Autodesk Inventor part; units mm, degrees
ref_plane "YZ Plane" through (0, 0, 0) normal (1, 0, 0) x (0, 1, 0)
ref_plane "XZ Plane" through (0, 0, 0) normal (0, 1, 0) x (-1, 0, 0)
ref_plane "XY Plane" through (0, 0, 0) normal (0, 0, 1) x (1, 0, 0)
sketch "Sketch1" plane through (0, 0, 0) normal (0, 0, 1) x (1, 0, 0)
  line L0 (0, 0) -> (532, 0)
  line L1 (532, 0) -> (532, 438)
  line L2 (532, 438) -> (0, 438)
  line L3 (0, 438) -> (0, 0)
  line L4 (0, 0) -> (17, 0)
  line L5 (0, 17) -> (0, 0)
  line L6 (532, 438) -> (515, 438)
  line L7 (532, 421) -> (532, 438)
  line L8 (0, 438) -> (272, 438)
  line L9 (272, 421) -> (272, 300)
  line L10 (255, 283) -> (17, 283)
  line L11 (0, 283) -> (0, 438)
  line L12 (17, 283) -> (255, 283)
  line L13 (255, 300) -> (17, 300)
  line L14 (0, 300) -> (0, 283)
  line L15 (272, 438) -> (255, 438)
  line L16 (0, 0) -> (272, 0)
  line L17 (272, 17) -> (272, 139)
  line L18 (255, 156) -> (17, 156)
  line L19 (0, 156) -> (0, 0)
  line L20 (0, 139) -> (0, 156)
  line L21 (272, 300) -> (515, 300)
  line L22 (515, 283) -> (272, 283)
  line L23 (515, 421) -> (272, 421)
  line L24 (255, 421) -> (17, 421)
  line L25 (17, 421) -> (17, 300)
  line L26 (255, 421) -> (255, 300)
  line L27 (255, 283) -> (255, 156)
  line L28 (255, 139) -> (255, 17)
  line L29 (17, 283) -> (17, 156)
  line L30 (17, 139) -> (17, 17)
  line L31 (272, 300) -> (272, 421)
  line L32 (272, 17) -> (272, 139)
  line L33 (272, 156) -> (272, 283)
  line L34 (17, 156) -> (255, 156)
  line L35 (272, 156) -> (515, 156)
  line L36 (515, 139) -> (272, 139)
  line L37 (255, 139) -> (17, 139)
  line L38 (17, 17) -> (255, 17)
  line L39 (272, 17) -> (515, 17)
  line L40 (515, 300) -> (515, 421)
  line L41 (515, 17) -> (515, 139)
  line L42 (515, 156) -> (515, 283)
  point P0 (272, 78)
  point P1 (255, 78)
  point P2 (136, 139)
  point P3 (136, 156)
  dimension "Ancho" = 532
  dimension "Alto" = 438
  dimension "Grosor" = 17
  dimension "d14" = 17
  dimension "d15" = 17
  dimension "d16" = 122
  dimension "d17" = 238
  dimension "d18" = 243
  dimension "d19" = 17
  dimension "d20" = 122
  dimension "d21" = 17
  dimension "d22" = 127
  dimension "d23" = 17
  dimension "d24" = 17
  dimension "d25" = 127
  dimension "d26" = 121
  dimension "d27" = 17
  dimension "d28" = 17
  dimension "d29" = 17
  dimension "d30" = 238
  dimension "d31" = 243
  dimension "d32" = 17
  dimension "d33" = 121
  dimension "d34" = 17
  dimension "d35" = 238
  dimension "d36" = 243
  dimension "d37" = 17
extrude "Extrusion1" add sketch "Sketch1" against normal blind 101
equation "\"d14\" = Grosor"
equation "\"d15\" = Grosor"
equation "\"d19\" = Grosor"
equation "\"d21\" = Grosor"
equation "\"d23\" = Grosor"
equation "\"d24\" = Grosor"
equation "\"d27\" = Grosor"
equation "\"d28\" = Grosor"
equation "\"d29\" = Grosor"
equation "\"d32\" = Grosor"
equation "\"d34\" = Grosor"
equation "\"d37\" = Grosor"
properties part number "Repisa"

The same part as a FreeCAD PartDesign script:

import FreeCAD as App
import Part
import Sketcher
Q = App.Units.Quantity

doc = App.newDocument("Part")
params = doc.addObject("Spreadsheet::Sheet", "Params")
for row, (alias, value) in enumerate([
    ("sketch1_width", "532 mm"),
    ("sketch1_width2", "238 mm"),
    ("sketch1_width3", "243 mm"),
    ("sketch1_height", "438 mm"),
    ("sketch1_height2", "122 mm"),
    ("pad1_length", "101 mm"),
], start=1):
    params.set(f"A{row}", alias)
    params.set(f"B{row}", "=" + value)
    params.setAlias(f"B{row}", alias)

body = doc.addObject("PartDesign::Body", "Body")

# Sketch on XY plane
sketch1 = body.newObject("Sketcher::SketchObject", "Sketch")
sketch1.AttachmentSupport = (doc.getObject("XY_Plane"), [""])
sketch1.MapMode = "FlatFace"
sketch1.addGeometry(Part.LineSegment(App.Vector(0, 438, 0), App.Vector(0, 0, 0)), False)
sketch1.addGeometry(Part.LineSegment(App.Vector(0, 0, 0), App.Vector(532, 0, 0)), False)
sketch1.addGeometry(Part.LineSegment(App.Vector(532, 0, 0), App.Vector(532, 438, 0)), False)
sketch1.addGeometry(Part.LineSegment(App.Vector(532, 438, 0), App.Vector(0, 438, 0)), False)
sketch1.addGeometry(Part.LineSegment(App.Vector(17, 139, 0), App.Vector(255, 139, 0)), False)
sketch1.addGeometry(Part.LineSegment(App.Vector(255, 139, 0), App.Vector(255, 17, 0)), False)
sketch1.addGeometry(Part.LineSegment(App.Vector(255, 17, 0), App.Vector(17, 17, 0)), False)
sketch1.addGeometry(Part.LineSegment(App.Vector(17, 17, 0), App.Vector(17, 139, 0)), False)
sketch1.addGeometry(Part.LineSegment(App.Vector(515, 17, 0), App.Vector(272, 17, 0)), False)
sketch1.addGeometry(Part.LineSegment(App.Vector(272, 17, 0), App.Vector(272, 139, 0)), False)
sketch1.addGeometry(Part.LineSegment(App.Vector(272, 139, 0), App.Vector(515, 139, 0)), False)
sketch1.addGeometry(Part.LineSegment(App.Vector(515, 139, 0), App.Vector(515, 17, 0)), False)
sketch1.addGeometry(Part.LineSegment(App.Vector(17, 283, 0), App.Vector(255, 283, 0)), False)
sketch1.addGeometry(Part.LineSegment(App.Vector(255, 283, 0), App.Vector(255, 156, 0)), False)
sketch1.addGeometry(Part.LineSegment(App.Vector(255, 156, 0), App.Vector(17, 156, 0)), False)
sketch1.addGeometry(Part.LineSegment(App.Vector(17, 156, 0), App.Vector(17, 283, 0)), False)
sketch1.addGeometry(Part.LineSegment(App.Vector(255, 421, 0), App.Vector(255, 300, 0)), False)
sketch1.addGeometry(Part.LineSegment(App.Vector(255, 300, 0), App.Vector(17, 300, 0)), False)
sketch1.addGeometry(Part.LineSegment(App.Vector(17, 300, 0), App.Vector(17, 421, 0)), False)
sketch1.addGeometry(Part.LineSegment(App.Vector(17, 421, 0), App.Vector(255, 421, 0)), False)
sketch1.addGeometry(Part.LineSegment(App.Vector(272, 283, 0), App.Vector(515, 283, 0)), False)
sketch1.addGeometry(Part.LineSegment(App.Vector(515, 283, 0), App.Vector(515, 156, 0)), False)
sketch1.addGeometry(Part.LineSegment(App.Vector(515, 156, 0), App.Vector(272, 156, 0)), False)
sketch1.addGeometry(Part.LineSegment(App.Vector(272, 156, 0), App.Vector(272, 283, 0)), False)
sketch1.addGeometry(Part.LineSegment(App.Vector(272, 300, 0), App.Vector(272, 421, 0)), False)
sketch1.addGeometry(Part.LineSegment(App.Vector(272, 421, 0), App.Vector(515, 421, 0)), False)
sketch1.addGeometry(Part.LineSegment(App.Vector(515, 421, 0), App.Vector(515, 300, 0)), False)
sketch1.addGeometry(Part.LineSegment(App.Vector(515, 300, 0), App.Vector(272, 300, 0)), False)
sketch1.addConstraint(Sketcher.Constraint("Coincident", 0, 2, 1, 1))
sketch1.addConstraint(Sketcher.Constraint("Coincident", 1, 2, 2, 1))
sketch1.addConstraint(Sketcher.Constraint("Coincident", 2, 2, 3, 1))
sketch1.addConstraint(Sketcher.Constraint("Coincident", 3, 2, 0, 1))
sketch1.addConstraint(Sketcher.Constraint("Coincident", 4, 2, 5, 1))
sketch1.addConstraint(Sketcher.Constraint("Coincident", 5, 2, 6, 1))
sketch1.addConstraint(Sketcher.Constraint("Coincident", 6, 2, 7, 1))
sketch1.addConstraint(Sketcher.Constraint("Coincident", 7, 2, 4, 1))
sketch1.addConstraint(Sketcher.Constraint("Coincident", 8, 2, 9, 1))
sketch1.addConstraint(Sketcher.Constraint("Coincident", 9, 2, 10, 1))
sketch1.addConstraint(Sketcher.Constraint("Coincident", 10, 2, 11, 1))
sketch1.addConstraint(Sketcher.Constraint("Coincident", 11, 2, 8, 1))
sketch1.addConstraint(Sketcher.Constraint("Coincident", 12, 2, 13, 1))
sketch1.addConstraint(Sketcher.Constraint("Coincident", 13, 2, 14, 1))
sketch1.addConstraint(Sketcher.Constraint("Coincident", 14, 2, 15, 1))
sketch1.addConstraint(Sketcher.Constraint("Coincident", 15, 2, 12, 1))
sketch1.addConstraint(Sketcher.Constraint("Coincident", 16, 2, 17, 1))
sketch1.addConstraint(Sketcher.Constraint("Coincident", 17, 2, 18, 1))
sketch1.addConstraint(Sketcher.Constraint("Coincident", 18, 2, 19, 1))
sketch1.addConstraint(Sketcher.Constraint("Coincident", 19, 2, 16, 1))
sketch1.addConstraint(Sketcher.Constraint("Coincident", 20, 2, 21, 1))
sketch1.addConstraint(Sketcher.Constraint("Coincident", 21, 2, 22, 1))
sketch1.addConstraint(Sketcher.Constraint("Coincident", 22, 2, 23, 1))
sketch1.addConstraint(Sketcher.Constraint("Coincident", 23, 2, 20, 1))
sketch1.addConstraint(Sketcher.Constraint("Coincident", 24, 2, 25, 1))
sketch1.addConstraint(Sketcher.Constraint("Coincident", 25, 2, 26, 1))
sketch1.addConstraint(Sketcher.Constraint("Coincident", 26, 2, 27, 1))
sketch1.addConstraint(Sketcher.Constraint("Coincident", 27, 2, 24, 1))
sketch1.addConstraint(Sketcher.Constraint("Vertical", 0))
sketch1.addConstraint(Sketcher.Constraint("Horizontal", 1))
sketch1.addConstraint(Sketcher.Constraint("Vertical", 2))
sketch1.addConstraint(Sketcher.Constraint("Horizontal", 3))
sketch1.addConstraint(Sketcher.Constraint("Horizontal", 4))
sketch1.addConstraint(Sketcher.Constraint("Vertical", 5))
sketch1.addConstraint(Sketcher.Constraint("Horizontal", 6))
sketch1.addConstraint(Sketcher.Constraint("Vertical", 7))
sketch1.addConstraint(Sketcher.Constraint("Horizontal", 8))
sketch1.addConstraint(Sketcher.Constraint("Vertical", 9))
sketch1.addConstraint(Sketcher.Constraint("Horizontal", 10))
sketch1.addConstraint(Sketcher.Constraint("Vertical", 11))
sketch1.addConstraint(Sketcher.Constraint("Horizontal", 12))
sketch1.addConstraint(Sketcher.Constraint("Vertical", 13))
sketch1.addConstraint(Sketcher.Constraint("Horizontal", 14))
sketch1.addConstraint(Sketcher.Constraint("Vertical", 15))
sketch1.addConstraint(Sketcher.Constraint("Vertical", 16))
sketch1.addConstraint(Sketcher.Constraint("Horizontal", 17))
sketch1.addConstraint(Sketcher.Constraint("Vertical", 18))
sketch1.addConstraint(Sketcher.Constraint("Horizontal", 19))
sketch1.addConstraint(Sketcher.Constraint("Horizontal", 20))
sketch1.addConstraint(Sketcher.Constraint("Vertical", 21))
sketch1.addConstraint(Sketcher.Constraint("Horizontal", 22))
sketch1.addConstraint(Sketcher.Constraint("Vertical", 23))
sketch1.addConstraint(Sketcher.Constraint("Vertical", 24))
sketch1.addConstraint(Sketcher.Constraint("Horizontal", 25))
sketch1.addConstraint(Sketcher.Constraint("Vertical", 26))
sketch1.addConstraint(Sketcher.Constraint("Horizontal", 27))
sketch1.addConstraint(Sketcher.Constraint("Coincident", 0, 2, -1, 1))
sketch1.addConstraint(Sketcher.Constraint("Horizontal", 6, 2, 8, 2))
sketch1.addConstraint(Sketcher.Constraint("Horizontal", 7, 2, 9, 2))
sketch1.addConstraint(Sketcher.Constraint("Horizontal", 15, 2, 20, 2))
sketch1.addConstraint(Sketcher.Constraint("Horizontal", 14, 2, 21, 2))
sketch1.addConstraint(Sketcher.Constraint("Horizontal", 19, 2, 24, 2))
sketch1.addConstraint(Sketcher.Constraint("Horizontal", 17, 2, 26, 2))
sketch1.addConstraint(Sketcher.Constraint("Vertical", 5, 2, 12, 2))
sketch1.addConstraint(Sketcher.Constraint("Vertical", 7, 2, 14, 2))
sketch1.addConstraint(Sketcher.Constraint("Vertical", 13, 2, 16, 2))
sketch1.addConstraint(Sketcher.Constraint("Vertical", 15, 2, 17, 2))
sketch1.addConstraint(Sketcher.Constraint("Vertical", 11, 2, 20, 2))
sketch1.addConstraint(Sketcher.Constraint("Vertical", 9, 2, 22, 2))
sketch1.addConstraint(Sketcher.Constraint("Vertical", 23, 2, 24, 2))
sketch1.addConstraint(Sketcher.Constraint("Vertical", 21, 2, 25, 2))
sketch1.addConstraint(Sketcher.Constraint("DistanceX", 1, 1, 1, 2, Q("532 mm")))
sketch1.addConstraint(Sketcher.Constraint("DistanceX", 4, 1, 4, 2, Q("238 mm")))
sketch1.addConstraint(Sketcher.Constraint("DistanceX", 8, 2, 8, 1, Q("243 mm")))
sketch1.addConstraint(Sketcher.Constraint("DistanceY", 0, 2, 0, 1, Q("438 mm")))
sketch1.addConstraint(Sketcher.Constraint("DistanceY", 5, 2, 5, 1, Q("122 mm")))
sketch1.addConstraint(Sketcher.Constraint("DistanceY", 13, 2, 13, 1, Q("127 mm")))
sketch1.addConstraint(Sketcher.Constraint("DistanceY", 16, 2, 16, 1, Q("121 mm")))
sketch1.addConstraint(Sketcher.Constraint("DistanceY", -1, 1, 5, 2, Q("17 mm")))
sketch1.addConstraint(Sketcher.Constraint("DistanceX", -1, 1, 6, 2, Q("17 mm")))
sketch1.addConstraint(Sketcher.Constraint("DistanceX", 5, 2, 8, 2, Q("17 mm")))
sketch1.addConstraint(Sketcher.Constraint("DistanceY", 4, 2, 13, 2, Q("17 mm")))
sketch1.addConstraint(Sketcher.Constraint("DistanceY", 12, 2, 16, 2, Q("17 mm")))
sketch1.setExpression("Constraints[71]", "Params.sketch1_width")
sketch1.setExpression("Constraints[72]", "Params.sketch1_width2")
sketch1.setExpression("Constraints[73]", "Params.sketch1_width3")
sketch1.setExpression("Constraints[74]", "Params.sketch1_height")
sketch1.setExpression("Constraints[75]", "Params.sketch1_height2")
pad1 = body.newObject("PartDesign::Pad", "Pad")
pad1.Profile = sketch1
pad1.setExpression("Length", "Params.pad1_length")
pad1.Reversed = True

doc.recompute()
